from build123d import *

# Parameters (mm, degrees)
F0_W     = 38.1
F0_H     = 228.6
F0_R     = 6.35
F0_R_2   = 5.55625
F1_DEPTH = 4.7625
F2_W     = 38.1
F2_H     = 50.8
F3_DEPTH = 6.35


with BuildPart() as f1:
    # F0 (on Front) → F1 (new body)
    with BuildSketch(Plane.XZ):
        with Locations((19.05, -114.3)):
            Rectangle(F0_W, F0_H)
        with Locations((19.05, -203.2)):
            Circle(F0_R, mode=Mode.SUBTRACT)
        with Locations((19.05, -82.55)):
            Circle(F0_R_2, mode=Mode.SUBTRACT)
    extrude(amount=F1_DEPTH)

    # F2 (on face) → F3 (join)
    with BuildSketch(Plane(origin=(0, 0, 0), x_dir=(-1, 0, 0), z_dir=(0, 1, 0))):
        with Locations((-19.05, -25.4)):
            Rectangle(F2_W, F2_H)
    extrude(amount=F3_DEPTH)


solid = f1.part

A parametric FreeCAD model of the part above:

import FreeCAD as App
import Part
import Sketcher
Q = App.Units.Quantity


def add_polygon(sketch, points):
    """Adds a closed chain of lines whose ends are joined by coincident constraints."""
    first, n = sketch.GeometryCount, len(points)
    for a, b in zip(points, points[1:] + points[:1]):
        sketch.addGeometry(Part.LineSegment(App.Vector(*a, 0), App.Vector(*b, 0)), False)
    for i in range(n):
        sketch.addConstraint(Sketcher.Constraint("Coincident", first + i, 2, first + (i + 1) % n, 1))

doc = App.newDocument("Part")
params = doc.addObject("Spreadsheet::Sheet", "Params")
for row, (alias, value) in enumerate([
    ("sketch1_diameter", "0.5 in"),
    ("sketch1_height", "9 in"),
    ("sketch1_diameter2", "0.4375 in"),
    ("sketch1_width", "1.5 in"),
    ("pad1_length", "0.1875 in"),
    ("sketch2_height", "2 in"),
    ("sketch2_width", "1.5 in"),
    ("pad2_length", "0.25 in"),
], start=1):
    params.set(f"A{row}", alias)
    params.set(f"B{row}", "=" + value)
    params.setAlias(f"B{row}", alias)

body = doc.addObject("PartDesign::Body", "Body")

# Sketch on XZ plane
sketch1 = doc.addObject("Sketcher::SketchObject", "Sketch")
body.addObject(sketch1)
sketch1.AttachmentSupport = (doc.XZ_Plane, [""])
sketch1.MapMode = "FlatFace"
add_polygon(sketch1, [(0, 0), (0, -228.6), (38.1, -228.6), (38.1, 0)])  # lines 0-3
sketch1.addGeometry(Part.Circle(App.Vector(19.05, -203.2, 0), App.Vector(0, 0, 1), 6.35), False)  # 4
sketch1.addGeometry(Part.Circle(App.Vector(19.05, -82.55, 0), App.Vector(0, 0, 1), 5.55625), False)  # 5
sketch1.addConstraint([
    Sketcher.Constraint("Vertical", 0),
    Sketcher.Constraint("Horizontal", 1),
    Sketcher.Constraint("Vertical", 2),
    Sketcher.Constraint("Horizontal", 3),
    Sketcher.Constraint("Coincident", 3, 2, -1, 1),
    Sketcher.Constraint("Vertical", 4, 3, 5, 3),
    Sketcher.Constraint("Diameter", 4, Q("0.5 in")),
    Sketcher.Constraint("DistanceY", 0, 2, 0, 1, Q("9 in")),
    Sketcher.Constraint("Diameter", 5, Q("0.4375 in")),
    Sketcher.Constraint("DistanceX", 1, 1, 1, 2, Q("1.5 in")),
    Sketcher.Constraint("DistanceY", 4, 3, -1, 1, Q("8 in")),
    Sketcher.Constraint("DistanceX", -1, 1, 4, 3, Q("0.75 in")),
    Sketcher.Constraint("DistanceY", 5, 3, -1, 1, Q("3.25 in")),
])
sketch1.setExpression("Constraints[10]", "Params.sketch1_diameter")
sketch1.setExpression("Constraints[11]", "Params.sketch1_height")
sketch1.setExpression("Constraints[12]", "Params.sketch1_diameter2")
sketch1.setExpression("Constraints[13]", "Params.sketch1_width")
pad1 = doc.addObject("PartDesign::Pad", "Pad")
body.addObject(pad1)
pad1.Profile = sketch1
pad1.setExpression("Length", "Params.pad1_length")

# Sketch on XZ plane
sketch2 = doc.addObject("Sketcher::SketchObject", "Sketch001")
body.addObject(sketch2)
sketch2.AttachmentSupport = (doc.XZ_Plane, [""])
sketch2.MapMode = "FlatFace"
add_polygon(sketch2, [(38.1, 0), (38.1, -50.8), (0, -50.8), (0, 0)])  # lines 0-3
sketch2.addConstraint([
    Sketcher.Constraint("Vertical", 0),
    Sketcher.Constraint("Horizontal", 1),
    Sketcher.Constraint("Vertical", 2),
    Sketcher.Constraint("Horizontal", 3),
    Sketcher.Constraint("Coincident", 2, 2, -1, 1),
    Sketcher.Constraint("DistanceY", 0, 2, 0, 1, Q("2 in")),
    Sketcher.Constraint("DistanceX", 1, 2, 1, 1, Q("1.5 in")),
])
sketch2.setExpression("Constraints[9]", "Params.sketch2_height")
sketch2.setExpression("Constraints[10]", "Params.sketch2_width")
pad2 = doc.addObject("PartDesign::Pad", "Pad001")
body.addObject(pad2)
pad2.Profile = sketch2
pad2.setExpression("Length", "Params.pad2_length")
pad2.Reversed = True

doc.recompute()
